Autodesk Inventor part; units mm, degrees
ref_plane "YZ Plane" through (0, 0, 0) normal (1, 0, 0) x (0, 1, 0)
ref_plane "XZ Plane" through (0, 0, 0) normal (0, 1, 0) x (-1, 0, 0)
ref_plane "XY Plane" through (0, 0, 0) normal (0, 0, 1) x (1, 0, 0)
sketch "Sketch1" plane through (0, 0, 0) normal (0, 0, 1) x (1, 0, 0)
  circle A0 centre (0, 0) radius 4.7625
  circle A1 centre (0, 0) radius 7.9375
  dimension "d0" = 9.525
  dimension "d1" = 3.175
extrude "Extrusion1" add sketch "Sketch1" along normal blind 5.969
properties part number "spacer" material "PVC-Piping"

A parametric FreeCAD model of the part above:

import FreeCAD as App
import Part
import Sketcher
from FreeCAD import Vector
Q = App.Units.Quantity

doc = App.newDocument("Part")
body = doc.addObject("PartDesign::Body", "Body")

sketch1 = doc.addObject("Sketcher::SketchObject", "Sketch")
body.addObject(sketch1)
sketch1.AttachmentSupport = (doc.XY_Plane, [""])
sketch1.MapMode = "FlatFace"
sketch1.addGeometry(Part.Circle(Vector(0, 0, 0), Vector(0, 0, 1), 7.9), False)
sketch1.addGeometry(Part.Circle(Vector(0, 0, 0), Vector(0, 0, 1), 4.8), False)
sketch1.addConstraint(Sketcher.Constraint("Coincident", 0, 3, -1, 1))
sketch1.addConstraint(Sketcher.Constraint("Coincident", 1, 3, -1, 1))
sketch1.addConstraint(Sketcher.Constraint("Diameter", 1, Q("0.375 in")))
sketch1.addConstraint(Sketcher.Constraint("Diameter", 0, Q("0.625 in")))
pad1 = doc.addObject("PartDesign::Pad", "Pad")
body.addObject(pad1)
pad1.Profile = sketch1
pad1.Length = Q("0.235 in")

doc.recompute()
